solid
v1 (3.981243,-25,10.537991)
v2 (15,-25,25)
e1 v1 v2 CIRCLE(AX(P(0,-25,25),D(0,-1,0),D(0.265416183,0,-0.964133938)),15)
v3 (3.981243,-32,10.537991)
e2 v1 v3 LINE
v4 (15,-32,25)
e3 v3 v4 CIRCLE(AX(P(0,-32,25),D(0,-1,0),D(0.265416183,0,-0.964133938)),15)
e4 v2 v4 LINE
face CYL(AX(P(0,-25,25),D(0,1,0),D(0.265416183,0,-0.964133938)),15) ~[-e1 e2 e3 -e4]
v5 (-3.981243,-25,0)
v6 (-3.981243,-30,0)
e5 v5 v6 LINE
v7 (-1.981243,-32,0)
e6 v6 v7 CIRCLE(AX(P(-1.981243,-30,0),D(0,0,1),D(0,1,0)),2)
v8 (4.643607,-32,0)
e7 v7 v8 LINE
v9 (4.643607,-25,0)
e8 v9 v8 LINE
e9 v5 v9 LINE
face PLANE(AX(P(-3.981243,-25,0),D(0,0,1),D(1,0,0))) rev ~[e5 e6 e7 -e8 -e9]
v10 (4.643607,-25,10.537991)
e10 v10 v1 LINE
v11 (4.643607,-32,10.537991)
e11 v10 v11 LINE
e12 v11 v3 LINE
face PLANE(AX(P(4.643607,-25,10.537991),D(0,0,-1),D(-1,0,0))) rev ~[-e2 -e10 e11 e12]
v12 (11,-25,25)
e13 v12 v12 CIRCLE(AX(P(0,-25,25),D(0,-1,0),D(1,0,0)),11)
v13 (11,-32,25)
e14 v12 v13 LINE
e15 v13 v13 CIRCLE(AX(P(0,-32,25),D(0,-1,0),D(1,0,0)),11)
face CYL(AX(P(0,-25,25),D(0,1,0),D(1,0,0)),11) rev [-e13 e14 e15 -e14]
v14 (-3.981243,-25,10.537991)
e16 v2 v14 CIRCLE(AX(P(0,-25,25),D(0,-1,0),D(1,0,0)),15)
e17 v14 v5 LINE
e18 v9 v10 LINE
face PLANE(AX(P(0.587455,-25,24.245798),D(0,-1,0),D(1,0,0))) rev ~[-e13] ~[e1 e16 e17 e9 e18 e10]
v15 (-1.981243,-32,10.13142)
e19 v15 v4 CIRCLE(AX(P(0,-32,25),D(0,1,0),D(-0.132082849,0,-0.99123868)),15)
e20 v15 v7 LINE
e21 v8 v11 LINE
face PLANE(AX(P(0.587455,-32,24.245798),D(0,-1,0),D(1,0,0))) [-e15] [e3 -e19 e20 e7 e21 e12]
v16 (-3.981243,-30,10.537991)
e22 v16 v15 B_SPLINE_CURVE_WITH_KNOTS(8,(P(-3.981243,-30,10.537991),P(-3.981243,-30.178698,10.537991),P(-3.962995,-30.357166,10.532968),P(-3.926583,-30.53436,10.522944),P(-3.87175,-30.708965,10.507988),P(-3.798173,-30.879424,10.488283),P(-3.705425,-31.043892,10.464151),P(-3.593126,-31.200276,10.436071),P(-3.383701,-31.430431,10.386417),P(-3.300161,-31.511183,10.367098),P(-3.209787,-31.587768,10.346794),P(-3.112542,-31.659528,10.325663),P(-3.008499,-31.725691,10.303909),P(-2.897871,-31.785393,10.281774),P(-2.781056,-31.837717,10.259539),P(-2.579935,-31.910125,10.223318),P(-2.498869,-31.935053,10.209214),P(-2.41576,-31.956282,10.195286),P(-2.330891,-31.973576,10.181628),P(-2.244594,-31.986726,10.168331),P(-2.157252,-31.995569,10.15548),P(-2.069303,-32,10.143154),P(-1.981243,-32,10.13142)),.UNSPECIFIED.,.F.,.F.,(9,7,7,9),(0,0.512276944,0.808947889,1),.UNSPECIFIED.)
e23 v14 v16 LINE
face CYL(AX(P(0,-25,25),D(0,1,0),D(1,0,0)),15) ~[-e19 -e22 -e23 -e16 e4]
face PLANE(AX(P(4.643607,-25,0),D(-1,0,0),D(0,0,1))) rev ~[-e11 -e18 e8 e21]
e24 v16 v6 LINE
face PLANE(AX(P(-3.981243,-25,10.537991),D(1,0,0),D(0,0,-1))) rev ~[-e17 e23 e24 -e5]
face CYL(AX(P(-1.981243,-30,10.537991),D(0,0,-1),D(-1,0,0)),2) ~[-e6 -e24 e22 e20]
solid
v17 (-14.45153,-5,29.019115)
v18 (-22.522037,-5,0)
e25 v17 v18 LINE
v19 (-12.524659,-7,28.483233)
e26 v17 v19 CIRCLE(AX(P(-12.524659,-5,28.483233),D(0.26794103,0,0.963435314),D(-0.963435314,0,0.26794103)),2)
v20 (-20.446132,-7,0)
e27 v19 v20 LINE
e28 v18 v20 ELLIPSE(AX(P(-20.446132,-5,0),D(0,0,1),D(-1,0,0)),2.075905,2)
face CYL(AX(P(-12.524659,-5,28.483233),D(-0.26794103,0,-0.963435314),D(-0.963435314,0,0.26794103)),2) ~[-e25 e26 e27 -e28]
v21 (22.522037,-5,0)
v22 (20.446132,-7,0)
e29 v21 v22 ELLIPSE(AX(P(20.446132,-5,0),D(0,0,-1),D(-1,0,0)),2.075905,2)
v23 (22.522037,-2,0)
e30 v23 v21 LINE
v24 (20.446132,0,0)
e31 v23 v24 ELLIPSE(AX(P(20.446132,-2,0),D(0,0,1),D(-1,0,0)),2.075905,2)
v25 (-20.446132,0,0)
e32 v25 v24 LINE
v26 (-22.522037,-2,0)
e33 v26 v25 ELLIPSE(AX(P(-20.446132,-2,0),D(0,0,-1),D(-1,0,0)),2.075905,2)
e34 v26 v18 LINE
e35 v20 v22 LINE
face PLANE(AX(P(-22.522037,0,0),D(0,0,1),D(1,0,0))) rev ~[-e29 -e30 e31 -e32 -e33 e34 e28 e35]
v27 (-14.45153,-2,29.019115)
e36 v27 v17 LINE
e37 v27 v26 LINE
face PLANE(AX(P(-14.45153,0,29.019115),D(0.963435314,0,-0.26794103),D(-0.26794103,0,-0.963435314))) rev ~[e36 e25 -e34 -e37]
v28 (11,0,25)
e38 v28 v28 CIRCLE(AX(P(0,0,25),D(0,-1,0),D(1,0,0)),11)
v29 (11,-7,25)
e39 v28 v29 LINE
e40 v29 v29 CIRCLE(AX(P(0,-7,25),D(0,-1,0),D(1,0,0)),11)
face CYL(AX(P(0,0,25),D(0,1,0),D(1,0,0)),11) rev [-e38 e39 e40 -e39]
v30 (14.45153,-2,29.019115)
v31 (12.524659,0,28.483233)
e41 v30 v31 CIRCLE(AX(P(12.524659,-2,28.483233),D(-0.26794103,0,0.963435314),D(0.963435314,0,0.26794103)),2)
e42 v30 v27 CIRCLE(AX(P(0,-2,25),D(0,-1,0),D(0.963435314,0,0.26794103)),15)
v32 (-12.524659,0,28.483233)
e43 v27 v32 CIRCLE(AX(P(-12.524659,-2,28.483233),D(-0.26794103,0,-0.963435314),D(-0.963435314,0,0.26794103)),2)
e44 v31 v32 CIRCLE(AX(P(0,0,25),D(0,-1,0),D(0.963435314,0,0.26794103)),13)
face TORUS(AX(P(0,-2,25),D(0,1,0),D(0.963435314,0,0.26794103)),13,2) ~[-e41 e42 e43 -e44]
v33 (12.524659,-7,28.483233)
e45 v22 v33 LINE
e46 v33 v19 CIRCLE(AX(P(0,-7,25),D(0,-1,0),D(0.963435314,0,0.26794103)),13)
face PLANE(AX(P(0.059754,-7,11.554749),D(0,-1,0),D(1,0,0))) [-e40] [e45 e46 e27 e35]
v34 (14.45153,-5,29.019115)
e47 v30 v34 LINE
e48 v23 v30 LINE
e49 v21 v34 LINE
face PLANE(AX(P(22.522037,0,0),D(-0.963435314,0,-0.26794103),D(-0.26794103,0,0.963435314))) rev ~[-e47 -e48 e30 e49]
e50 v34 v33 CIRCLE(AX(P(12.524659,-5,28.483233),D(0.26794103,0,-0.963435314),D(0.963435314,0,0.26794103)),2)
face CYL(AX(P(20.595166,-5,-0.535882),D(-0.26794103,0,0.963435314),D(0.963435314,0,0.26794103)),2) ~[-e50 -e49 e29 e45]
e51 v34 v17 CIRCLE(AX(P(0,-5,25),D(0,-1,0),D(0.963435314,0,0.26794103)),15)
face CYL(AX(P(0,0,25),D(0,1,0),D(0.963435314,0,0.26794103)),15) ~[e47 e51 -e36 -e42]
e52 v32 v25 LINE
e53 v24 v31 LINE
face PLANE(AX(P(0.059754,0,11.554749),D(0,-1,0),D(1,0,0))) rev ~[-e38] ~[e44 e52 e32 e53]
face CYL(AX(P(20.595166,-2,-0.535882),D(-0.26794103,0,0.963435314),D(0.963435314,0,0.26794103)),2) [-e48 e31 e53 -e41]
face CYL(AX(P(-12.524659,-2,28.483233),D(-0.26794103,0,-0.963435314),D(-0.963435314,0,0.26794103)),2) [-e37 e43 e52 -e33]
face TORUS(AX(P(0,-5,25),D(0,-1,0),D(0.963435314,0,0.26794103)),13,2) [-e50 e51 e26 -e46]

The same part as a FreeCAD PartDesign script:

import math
import FreeCAD as App
import Part
import Sketcher

V = App.Vector
Q = App.Units.Quantity


def edges_at(feature, points):
    """Names of the edges that pass closest to the given points."""
    edges = feature.Shape.Edges
    near = lambda p: min(range(len(edges)), key=lambda i: edges[i].distToShape(Part.Vertex(*p))[0])
    return sorted({f"Edge{near(p) + 1}" for p in points})

doc = App.newDocument("Part")
params = doc.addObject("Spreadsheet::Sheet", "Params")
for row, (alias, value) in enumerate([
    ("sketch1_diameter", "22 mm"),
    ("sketch1_radius", "15 mm"),
    ("pad1_length", "7 mm"),
    ("fillet_radius", "2 mm"),
    ("sketch2_diameter", "22 mm"),
    ("sketch2_radius", "15 mm"),
    ("pad2_length", "7 mm"),
    ("fillet2_radius", "2 mm"),
], start=1):
    params.set(f"A{row}", alias)
    params.set(f"B{row}", "=" + value)
    params.setAlias(f"B{row}", alias)

body = doc.addObject("PartDesign::Body", "Body")

# Sketch on XZ plane
sketch1 = body.newObject("Sketcher::SketchObject", "Sketch")
sketch1.AttachmentSupport = (doc.getObject("XZ_Plane"), [""])
sketch1.MapMode = "FlatFace"
sketch1.addGeometry([
    Part.LineSegment(V(-14.45153, 29.019115, 0), V(-22.522037, 0, 0)),  # 0
    Part.LineSegment(V(-22.522037, 0, 0), V(22.522037, 0, 0)),  # 1
    Part.LineSegment(V(22.522037, 0, 0), V(14.45153, 29.019115, 0)),  # 2
    Part.ArcOfCircle(Part.Circle(V(0, 25, 0), V(0, 0, 1), 15), math.radians(15.541783), math.radians(164.458217)),  # 3
    Part.Circle(V(0, 25, 0), V(0, 0, 1), 11),  # 4
], False)
sketch1.addConstraint([
    Sketcher.Constraint("Coincident", 0, 2, 1, 1),
    Sketcher.Constraint("Coincident", 1, 2, 2, 1),
    Sketcher.Constraint("Tangent", 2, 2, 3, 1),
    Sketcher.Constraint("Tangent", 3, 2, 0, 1),
    Sketcher.Constraint("Horizontal", 1),
    Sketcher.Constraint("Coincident", 4, 3, 3, 3),
    Sketcher.Constraint("Symmetric", 0, 2, 1, 2, -1, 1),
    Sketcher.Constraint("PointOnObject", 3, 3, -2),
    Sketcher.Constraint("Diameter", 4, Q("22 mm")),
    Sketcher.Constraint("Radius", 3, Q("15 mm")),
    Sketcher.Constraint("DistanceY", -1, 1, 3, 3, Q("25 mm")),
    Sketcher.Constraint("Distance", 0, Q("30.120461 mm")),
])
sketch1.setExpression("Constraints[8]", "Params.sketch1_diameter")
sketch1.setExpression("Constraints[9]", "Params.sketch1_radius")
pad1 = body.newObject("PartDesign::Pad", "Pad")
pad1.Profile = sketch1
pad1.setExpression("Length", "Params.pad1_length")
doc.recompute()

fillet = body.newObject("PartDesign::Fillet", "Fillet")
fillet.Base = (pad1, edges_at(pad1, [(-18.487, -7, 14.51), (18.487, 0, 14.51)]))
fillet.setExpression("Radius", "Params.fillet_radius")
body2 = doc.addObject("PartDesign::Body", "Body001")

# Sketch on XZ plane
sketch2 = body2.newObject("Sketcher::SketchObject", "Sketch001")
sketch2.AttachmentSupport = (doc.getObject("XZ_Plane001"), [""])
sketch2.MapMode = "FlatFace"
sketch2.AttachmentOffset = App.Placement(V(0, 0, 25), App.Rotation())
sketch2.addGeometry([
    Part.ArcOfCircle(Part.Circle(V(0, 25, 0), V(0, 0, 1), 15), math.radians(-74.608316), math.radians(0)),  # 0
    Part.ArcOfCircle(Part.Circle(V(0, 25, 0), V(0, 0, 1), 15), math.radians(0), math.radians(254.608316)),  # 1
    Part.LineSegment(V(-3.981243, 10.537991, 0), V(-3.981243, 0, 0)),  # 2
    Part.LineSegment(V(-3.981243, 0, 0), V(4.643607, 0, 0)),  # 3
    Part.LineSegment(V(4.643607, 0, 0), V(4.643607, 10.537991, 0)),  # 4
    Part.LineSegment(V(4.643607, 10.537991, 0), V(3.981243, 10.537991, 0)),  # 5
    Part.Circle(V(0, 25, 0), V(0, 0, 1), 11),  # 6
], False)
sketch2.addConstraint([
    Sketcher.Constraint("Tangent", 0, 2, 1, 1),
    Sketcher.Constraint("Coincident", 1, 2, 2, 1),
    Sketcher.Constraint("Coincident", 2, 2, 3, 1),
    Sketcher.Constraint("Coincident", 3, 2, 4, 1),
    Sketcher.Constraint("Coincident", 4, 2, 5, 1),
    Sketcher.Constraint("Coincident", 5, 2, 0, 1),
    Sketcher.Constraint("Vertical", 2),
    Sketcher.Constraint("Horizontal", 3),
    Sketcher.Constraint("Vertical", 4),
    Sketcher.Constraint("Horizontal", 5),
    Sketcher.Constraint("Coincident", 6, 3, 0, 3),
    Sketcher.Constraint("Equal", 0, 1),
    Sketcher.Constraint("Symmetric", 1, 2, 5, 2, -2),
    Sketcher.Constraint("PointOnObject", 2, 2, -1),
    Sketcher.Constraint("Horizontal", 6, 3, 0, 2),
    Sketcher.Constraint("Diameter", 6, Q("22 mm")),
    Sketcher.Constraint("Radius", 0, Q("15 mm")),
    Sketcher.Constraint("DistanceY", -1, 1, 0, 3, Q("25 mm")),
    Sketcher.Constraint("DistanceX", 3, 1, 3, 2, Q("8.62485 mm")),
    Sketcher.Constraint("DistanceY", 2, 2, 2, 1, Q("10.537991 mm")),
])
sketch2.setExpression("Constraints[15]", "Params.sketch2_diameter")
sketch2.setExpression("Constraints[16]", "Params.sketch2_radius")
pad2 = body2.newObject("PartDesign::Pad", "Pad001")
pad2.Profile = sketch2
pad2.setExpression("Length", "Params.pad2_length")
doc.recompute()

fillet2 = body2.newObject("PartDesign::Fillet", "Fillet001")
fillet2.Base = (pad2, edges_at(pad2, [(-3.981, -32, 5.269)]))
fillet2.setExpression("Radius", "Params.fillet2_radius")

doc.recompute()
